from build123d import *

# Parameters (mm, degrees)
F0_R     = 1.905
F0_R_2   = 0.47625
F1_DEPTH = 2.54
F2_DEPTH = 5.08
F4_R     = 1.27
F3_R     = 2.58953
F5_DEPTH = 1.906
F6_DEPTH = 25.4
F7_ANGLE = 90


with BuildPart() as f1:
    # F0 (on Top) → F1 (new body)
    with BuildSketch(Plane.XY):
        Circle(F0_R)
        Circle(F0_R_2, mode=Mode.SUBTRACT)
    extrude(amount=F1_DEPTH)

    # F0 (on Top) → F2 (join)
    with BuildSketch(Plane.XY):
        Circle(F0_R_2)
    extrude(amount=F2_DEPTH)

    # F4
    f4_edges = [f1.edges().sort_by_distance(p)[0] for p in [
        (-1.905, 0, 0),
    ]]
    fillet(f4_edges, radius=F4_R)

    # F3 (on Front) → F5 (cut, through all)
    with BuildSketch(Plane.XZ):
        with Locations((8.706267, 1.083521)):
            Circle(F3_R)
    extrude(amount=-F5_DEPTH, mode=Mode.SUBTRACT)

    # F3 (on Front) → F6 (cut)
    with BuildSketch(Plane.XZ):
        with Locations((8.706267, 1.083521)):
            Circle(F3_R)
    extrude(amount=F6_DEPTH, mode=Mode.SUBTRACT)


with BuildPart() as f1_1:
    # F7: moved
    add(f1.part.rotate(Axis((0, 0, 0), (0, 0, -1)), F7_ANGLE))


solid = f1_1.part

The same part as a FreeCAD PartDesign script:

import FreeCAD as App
import Part
import Sketcher
from FreeCAD import Vector
Q = App.Units.Quantity


def edges_at(feature, points):
    """Names of the edges that pass closest to the given points."""
    edges = feature.Shape.Edges
    near = lambda p: min(range(len(edges)), key=lambda i: edges[i].distToShape(Part.Vertex(*p))[0])
    return sorted({f"Edge{near(p) + 1}" for p in points})

doc = App.newDocument("Part")
body = doc.addObject("PartDesign::Body", "Body")

sketch1 = body.newObject("Sketcher::SketchObject", "Sketch")
sketch1.AttachmentSupport = (doc.getObject("XY_Plane"), [""])
sketch1.MapMode = "FlatFace"
sketch1.addGeometry([
    Part.Circle(Vector(0, 0, 0), Vector(0, 0, 1), 1.905),
    Part.Circle(Vector(0, 0, 0), Vector(0, 0, 1), 0.47625),
], False)
sketch1.addConstraint([
    Sketcher.Constraint("Coincident", 0, 3, -1, 1),
    Sketcher.Constraint("Coincident", 1, 3, -1, 1),
    Sketcher.Constraint("Diameter", 0, Q("0.15 in")),
    Sketcher.Constraint("Diameter", 1, Q("0.0375 in")),
])
pad1 = body.newObject("PartDesign::Pad", "Pad")
pad1.Profile = sketch1
pad1.Length = Q("0.1 in")

sketch2 = body.newObject("Sketcher::SketchObject", "Sketch001")
sketch2.AttachmentSupport = (doc.getObject("XY_Plane"), [""])
sketch2.MapMode = "FlatFace"
sketch2.addGeometry(Part.Circle(Vector(0, 0, 0), Vector(0, 0, 1), 0.47625), False)
sketch2.addConstraint([
    Sketcher.Constraint("Coincident", 0, 3, -1, 1),
    Sketcher.Constraint("Diameter", 0, Q("0.0375 in")),
])
pad2 = body.newObject("PartDesign::Pad", "Pad001")
pad2.Profile = sketch2
pad2.Length = Q("0.2 in")
doc.recompute()

fillet = body.newObject("PartDesign::Fillet", "Fillet")
fillet.Base = (pad2, edges_at(pad2, [(-1.905, 0, 0)]))
fillet.Radius = Q("0.05 in")

sketch3 = body.newObject("Sketcher::SketchObject", "Sketch002")
sketch3.AttachmentSupport = (doc.getObject("XZ_Plane"), [""])
sketch3.MapMode = "FlatFace"
sketch3.addGeometry(Part.Circle(Vector(8.706267, 1.083521, 0), Vector(0, 0, 1), 2.58953), False)
sketch3.addConstraint([
    Sketcher.Constraint("Diameter", 0, Q("0.2039 in")),
    Sketcher.Constraint("DistanceY", -1, 1, 0, 3, Q("1.083521 mm")),
    Sketcher.Constraint("DistanceX", -1, 1, 0, 3, Q("8.706267 mm")),
])
pocket1 = body.newObject("PartDesign::Pocket", "Pocket")
pocket1.Profile = sketch3
pocket1.Type = "ThroughAll"

sketch4 = body.newObject("Sketcher::SketchObject", "Sketch003")
sketch4.AttachmentSupport = (doc.getObject("XZ_Plane"), [""])
sketch4.MapMode = "FlatFace"
sketch4.addGeometry(Part.Circle(Vector(8.706267, 1.083521, 0), Vector(0, 0, 1), 2.58953), False)
sketch4.addConstraint([
    Sketcher.Constraint("Diameter", 0, Q("0.2039 in")),
    Sketcher.Constraint("DistanceY", -1, 1, 0, 3, Q("1.083521 mm")),
    Sketcher.Constraint("DistanceX", -1, 1, 0, 3, Q("8.706267 mm")),
])
pocket2 = body.newObject("PartDesign::Pocket", "Pocket001")
pocket2.Profile = sketch4
pocket2.Length = Q("1 in")
pocket2.Reversed = True
body2 = doc.addObject("PartDesign::Body", "Body001")
doc.recompute()

body.Placement = App.Placement(Vector(0, 0, 0), App.Rotation(Vector(0, 0, -1), 90))
boolean = body2.newObject("PartDesign::Boolean", "Boolean")
boolean.Type = "Fuse"
boolean.addObjects([body])

doc.recompute()
